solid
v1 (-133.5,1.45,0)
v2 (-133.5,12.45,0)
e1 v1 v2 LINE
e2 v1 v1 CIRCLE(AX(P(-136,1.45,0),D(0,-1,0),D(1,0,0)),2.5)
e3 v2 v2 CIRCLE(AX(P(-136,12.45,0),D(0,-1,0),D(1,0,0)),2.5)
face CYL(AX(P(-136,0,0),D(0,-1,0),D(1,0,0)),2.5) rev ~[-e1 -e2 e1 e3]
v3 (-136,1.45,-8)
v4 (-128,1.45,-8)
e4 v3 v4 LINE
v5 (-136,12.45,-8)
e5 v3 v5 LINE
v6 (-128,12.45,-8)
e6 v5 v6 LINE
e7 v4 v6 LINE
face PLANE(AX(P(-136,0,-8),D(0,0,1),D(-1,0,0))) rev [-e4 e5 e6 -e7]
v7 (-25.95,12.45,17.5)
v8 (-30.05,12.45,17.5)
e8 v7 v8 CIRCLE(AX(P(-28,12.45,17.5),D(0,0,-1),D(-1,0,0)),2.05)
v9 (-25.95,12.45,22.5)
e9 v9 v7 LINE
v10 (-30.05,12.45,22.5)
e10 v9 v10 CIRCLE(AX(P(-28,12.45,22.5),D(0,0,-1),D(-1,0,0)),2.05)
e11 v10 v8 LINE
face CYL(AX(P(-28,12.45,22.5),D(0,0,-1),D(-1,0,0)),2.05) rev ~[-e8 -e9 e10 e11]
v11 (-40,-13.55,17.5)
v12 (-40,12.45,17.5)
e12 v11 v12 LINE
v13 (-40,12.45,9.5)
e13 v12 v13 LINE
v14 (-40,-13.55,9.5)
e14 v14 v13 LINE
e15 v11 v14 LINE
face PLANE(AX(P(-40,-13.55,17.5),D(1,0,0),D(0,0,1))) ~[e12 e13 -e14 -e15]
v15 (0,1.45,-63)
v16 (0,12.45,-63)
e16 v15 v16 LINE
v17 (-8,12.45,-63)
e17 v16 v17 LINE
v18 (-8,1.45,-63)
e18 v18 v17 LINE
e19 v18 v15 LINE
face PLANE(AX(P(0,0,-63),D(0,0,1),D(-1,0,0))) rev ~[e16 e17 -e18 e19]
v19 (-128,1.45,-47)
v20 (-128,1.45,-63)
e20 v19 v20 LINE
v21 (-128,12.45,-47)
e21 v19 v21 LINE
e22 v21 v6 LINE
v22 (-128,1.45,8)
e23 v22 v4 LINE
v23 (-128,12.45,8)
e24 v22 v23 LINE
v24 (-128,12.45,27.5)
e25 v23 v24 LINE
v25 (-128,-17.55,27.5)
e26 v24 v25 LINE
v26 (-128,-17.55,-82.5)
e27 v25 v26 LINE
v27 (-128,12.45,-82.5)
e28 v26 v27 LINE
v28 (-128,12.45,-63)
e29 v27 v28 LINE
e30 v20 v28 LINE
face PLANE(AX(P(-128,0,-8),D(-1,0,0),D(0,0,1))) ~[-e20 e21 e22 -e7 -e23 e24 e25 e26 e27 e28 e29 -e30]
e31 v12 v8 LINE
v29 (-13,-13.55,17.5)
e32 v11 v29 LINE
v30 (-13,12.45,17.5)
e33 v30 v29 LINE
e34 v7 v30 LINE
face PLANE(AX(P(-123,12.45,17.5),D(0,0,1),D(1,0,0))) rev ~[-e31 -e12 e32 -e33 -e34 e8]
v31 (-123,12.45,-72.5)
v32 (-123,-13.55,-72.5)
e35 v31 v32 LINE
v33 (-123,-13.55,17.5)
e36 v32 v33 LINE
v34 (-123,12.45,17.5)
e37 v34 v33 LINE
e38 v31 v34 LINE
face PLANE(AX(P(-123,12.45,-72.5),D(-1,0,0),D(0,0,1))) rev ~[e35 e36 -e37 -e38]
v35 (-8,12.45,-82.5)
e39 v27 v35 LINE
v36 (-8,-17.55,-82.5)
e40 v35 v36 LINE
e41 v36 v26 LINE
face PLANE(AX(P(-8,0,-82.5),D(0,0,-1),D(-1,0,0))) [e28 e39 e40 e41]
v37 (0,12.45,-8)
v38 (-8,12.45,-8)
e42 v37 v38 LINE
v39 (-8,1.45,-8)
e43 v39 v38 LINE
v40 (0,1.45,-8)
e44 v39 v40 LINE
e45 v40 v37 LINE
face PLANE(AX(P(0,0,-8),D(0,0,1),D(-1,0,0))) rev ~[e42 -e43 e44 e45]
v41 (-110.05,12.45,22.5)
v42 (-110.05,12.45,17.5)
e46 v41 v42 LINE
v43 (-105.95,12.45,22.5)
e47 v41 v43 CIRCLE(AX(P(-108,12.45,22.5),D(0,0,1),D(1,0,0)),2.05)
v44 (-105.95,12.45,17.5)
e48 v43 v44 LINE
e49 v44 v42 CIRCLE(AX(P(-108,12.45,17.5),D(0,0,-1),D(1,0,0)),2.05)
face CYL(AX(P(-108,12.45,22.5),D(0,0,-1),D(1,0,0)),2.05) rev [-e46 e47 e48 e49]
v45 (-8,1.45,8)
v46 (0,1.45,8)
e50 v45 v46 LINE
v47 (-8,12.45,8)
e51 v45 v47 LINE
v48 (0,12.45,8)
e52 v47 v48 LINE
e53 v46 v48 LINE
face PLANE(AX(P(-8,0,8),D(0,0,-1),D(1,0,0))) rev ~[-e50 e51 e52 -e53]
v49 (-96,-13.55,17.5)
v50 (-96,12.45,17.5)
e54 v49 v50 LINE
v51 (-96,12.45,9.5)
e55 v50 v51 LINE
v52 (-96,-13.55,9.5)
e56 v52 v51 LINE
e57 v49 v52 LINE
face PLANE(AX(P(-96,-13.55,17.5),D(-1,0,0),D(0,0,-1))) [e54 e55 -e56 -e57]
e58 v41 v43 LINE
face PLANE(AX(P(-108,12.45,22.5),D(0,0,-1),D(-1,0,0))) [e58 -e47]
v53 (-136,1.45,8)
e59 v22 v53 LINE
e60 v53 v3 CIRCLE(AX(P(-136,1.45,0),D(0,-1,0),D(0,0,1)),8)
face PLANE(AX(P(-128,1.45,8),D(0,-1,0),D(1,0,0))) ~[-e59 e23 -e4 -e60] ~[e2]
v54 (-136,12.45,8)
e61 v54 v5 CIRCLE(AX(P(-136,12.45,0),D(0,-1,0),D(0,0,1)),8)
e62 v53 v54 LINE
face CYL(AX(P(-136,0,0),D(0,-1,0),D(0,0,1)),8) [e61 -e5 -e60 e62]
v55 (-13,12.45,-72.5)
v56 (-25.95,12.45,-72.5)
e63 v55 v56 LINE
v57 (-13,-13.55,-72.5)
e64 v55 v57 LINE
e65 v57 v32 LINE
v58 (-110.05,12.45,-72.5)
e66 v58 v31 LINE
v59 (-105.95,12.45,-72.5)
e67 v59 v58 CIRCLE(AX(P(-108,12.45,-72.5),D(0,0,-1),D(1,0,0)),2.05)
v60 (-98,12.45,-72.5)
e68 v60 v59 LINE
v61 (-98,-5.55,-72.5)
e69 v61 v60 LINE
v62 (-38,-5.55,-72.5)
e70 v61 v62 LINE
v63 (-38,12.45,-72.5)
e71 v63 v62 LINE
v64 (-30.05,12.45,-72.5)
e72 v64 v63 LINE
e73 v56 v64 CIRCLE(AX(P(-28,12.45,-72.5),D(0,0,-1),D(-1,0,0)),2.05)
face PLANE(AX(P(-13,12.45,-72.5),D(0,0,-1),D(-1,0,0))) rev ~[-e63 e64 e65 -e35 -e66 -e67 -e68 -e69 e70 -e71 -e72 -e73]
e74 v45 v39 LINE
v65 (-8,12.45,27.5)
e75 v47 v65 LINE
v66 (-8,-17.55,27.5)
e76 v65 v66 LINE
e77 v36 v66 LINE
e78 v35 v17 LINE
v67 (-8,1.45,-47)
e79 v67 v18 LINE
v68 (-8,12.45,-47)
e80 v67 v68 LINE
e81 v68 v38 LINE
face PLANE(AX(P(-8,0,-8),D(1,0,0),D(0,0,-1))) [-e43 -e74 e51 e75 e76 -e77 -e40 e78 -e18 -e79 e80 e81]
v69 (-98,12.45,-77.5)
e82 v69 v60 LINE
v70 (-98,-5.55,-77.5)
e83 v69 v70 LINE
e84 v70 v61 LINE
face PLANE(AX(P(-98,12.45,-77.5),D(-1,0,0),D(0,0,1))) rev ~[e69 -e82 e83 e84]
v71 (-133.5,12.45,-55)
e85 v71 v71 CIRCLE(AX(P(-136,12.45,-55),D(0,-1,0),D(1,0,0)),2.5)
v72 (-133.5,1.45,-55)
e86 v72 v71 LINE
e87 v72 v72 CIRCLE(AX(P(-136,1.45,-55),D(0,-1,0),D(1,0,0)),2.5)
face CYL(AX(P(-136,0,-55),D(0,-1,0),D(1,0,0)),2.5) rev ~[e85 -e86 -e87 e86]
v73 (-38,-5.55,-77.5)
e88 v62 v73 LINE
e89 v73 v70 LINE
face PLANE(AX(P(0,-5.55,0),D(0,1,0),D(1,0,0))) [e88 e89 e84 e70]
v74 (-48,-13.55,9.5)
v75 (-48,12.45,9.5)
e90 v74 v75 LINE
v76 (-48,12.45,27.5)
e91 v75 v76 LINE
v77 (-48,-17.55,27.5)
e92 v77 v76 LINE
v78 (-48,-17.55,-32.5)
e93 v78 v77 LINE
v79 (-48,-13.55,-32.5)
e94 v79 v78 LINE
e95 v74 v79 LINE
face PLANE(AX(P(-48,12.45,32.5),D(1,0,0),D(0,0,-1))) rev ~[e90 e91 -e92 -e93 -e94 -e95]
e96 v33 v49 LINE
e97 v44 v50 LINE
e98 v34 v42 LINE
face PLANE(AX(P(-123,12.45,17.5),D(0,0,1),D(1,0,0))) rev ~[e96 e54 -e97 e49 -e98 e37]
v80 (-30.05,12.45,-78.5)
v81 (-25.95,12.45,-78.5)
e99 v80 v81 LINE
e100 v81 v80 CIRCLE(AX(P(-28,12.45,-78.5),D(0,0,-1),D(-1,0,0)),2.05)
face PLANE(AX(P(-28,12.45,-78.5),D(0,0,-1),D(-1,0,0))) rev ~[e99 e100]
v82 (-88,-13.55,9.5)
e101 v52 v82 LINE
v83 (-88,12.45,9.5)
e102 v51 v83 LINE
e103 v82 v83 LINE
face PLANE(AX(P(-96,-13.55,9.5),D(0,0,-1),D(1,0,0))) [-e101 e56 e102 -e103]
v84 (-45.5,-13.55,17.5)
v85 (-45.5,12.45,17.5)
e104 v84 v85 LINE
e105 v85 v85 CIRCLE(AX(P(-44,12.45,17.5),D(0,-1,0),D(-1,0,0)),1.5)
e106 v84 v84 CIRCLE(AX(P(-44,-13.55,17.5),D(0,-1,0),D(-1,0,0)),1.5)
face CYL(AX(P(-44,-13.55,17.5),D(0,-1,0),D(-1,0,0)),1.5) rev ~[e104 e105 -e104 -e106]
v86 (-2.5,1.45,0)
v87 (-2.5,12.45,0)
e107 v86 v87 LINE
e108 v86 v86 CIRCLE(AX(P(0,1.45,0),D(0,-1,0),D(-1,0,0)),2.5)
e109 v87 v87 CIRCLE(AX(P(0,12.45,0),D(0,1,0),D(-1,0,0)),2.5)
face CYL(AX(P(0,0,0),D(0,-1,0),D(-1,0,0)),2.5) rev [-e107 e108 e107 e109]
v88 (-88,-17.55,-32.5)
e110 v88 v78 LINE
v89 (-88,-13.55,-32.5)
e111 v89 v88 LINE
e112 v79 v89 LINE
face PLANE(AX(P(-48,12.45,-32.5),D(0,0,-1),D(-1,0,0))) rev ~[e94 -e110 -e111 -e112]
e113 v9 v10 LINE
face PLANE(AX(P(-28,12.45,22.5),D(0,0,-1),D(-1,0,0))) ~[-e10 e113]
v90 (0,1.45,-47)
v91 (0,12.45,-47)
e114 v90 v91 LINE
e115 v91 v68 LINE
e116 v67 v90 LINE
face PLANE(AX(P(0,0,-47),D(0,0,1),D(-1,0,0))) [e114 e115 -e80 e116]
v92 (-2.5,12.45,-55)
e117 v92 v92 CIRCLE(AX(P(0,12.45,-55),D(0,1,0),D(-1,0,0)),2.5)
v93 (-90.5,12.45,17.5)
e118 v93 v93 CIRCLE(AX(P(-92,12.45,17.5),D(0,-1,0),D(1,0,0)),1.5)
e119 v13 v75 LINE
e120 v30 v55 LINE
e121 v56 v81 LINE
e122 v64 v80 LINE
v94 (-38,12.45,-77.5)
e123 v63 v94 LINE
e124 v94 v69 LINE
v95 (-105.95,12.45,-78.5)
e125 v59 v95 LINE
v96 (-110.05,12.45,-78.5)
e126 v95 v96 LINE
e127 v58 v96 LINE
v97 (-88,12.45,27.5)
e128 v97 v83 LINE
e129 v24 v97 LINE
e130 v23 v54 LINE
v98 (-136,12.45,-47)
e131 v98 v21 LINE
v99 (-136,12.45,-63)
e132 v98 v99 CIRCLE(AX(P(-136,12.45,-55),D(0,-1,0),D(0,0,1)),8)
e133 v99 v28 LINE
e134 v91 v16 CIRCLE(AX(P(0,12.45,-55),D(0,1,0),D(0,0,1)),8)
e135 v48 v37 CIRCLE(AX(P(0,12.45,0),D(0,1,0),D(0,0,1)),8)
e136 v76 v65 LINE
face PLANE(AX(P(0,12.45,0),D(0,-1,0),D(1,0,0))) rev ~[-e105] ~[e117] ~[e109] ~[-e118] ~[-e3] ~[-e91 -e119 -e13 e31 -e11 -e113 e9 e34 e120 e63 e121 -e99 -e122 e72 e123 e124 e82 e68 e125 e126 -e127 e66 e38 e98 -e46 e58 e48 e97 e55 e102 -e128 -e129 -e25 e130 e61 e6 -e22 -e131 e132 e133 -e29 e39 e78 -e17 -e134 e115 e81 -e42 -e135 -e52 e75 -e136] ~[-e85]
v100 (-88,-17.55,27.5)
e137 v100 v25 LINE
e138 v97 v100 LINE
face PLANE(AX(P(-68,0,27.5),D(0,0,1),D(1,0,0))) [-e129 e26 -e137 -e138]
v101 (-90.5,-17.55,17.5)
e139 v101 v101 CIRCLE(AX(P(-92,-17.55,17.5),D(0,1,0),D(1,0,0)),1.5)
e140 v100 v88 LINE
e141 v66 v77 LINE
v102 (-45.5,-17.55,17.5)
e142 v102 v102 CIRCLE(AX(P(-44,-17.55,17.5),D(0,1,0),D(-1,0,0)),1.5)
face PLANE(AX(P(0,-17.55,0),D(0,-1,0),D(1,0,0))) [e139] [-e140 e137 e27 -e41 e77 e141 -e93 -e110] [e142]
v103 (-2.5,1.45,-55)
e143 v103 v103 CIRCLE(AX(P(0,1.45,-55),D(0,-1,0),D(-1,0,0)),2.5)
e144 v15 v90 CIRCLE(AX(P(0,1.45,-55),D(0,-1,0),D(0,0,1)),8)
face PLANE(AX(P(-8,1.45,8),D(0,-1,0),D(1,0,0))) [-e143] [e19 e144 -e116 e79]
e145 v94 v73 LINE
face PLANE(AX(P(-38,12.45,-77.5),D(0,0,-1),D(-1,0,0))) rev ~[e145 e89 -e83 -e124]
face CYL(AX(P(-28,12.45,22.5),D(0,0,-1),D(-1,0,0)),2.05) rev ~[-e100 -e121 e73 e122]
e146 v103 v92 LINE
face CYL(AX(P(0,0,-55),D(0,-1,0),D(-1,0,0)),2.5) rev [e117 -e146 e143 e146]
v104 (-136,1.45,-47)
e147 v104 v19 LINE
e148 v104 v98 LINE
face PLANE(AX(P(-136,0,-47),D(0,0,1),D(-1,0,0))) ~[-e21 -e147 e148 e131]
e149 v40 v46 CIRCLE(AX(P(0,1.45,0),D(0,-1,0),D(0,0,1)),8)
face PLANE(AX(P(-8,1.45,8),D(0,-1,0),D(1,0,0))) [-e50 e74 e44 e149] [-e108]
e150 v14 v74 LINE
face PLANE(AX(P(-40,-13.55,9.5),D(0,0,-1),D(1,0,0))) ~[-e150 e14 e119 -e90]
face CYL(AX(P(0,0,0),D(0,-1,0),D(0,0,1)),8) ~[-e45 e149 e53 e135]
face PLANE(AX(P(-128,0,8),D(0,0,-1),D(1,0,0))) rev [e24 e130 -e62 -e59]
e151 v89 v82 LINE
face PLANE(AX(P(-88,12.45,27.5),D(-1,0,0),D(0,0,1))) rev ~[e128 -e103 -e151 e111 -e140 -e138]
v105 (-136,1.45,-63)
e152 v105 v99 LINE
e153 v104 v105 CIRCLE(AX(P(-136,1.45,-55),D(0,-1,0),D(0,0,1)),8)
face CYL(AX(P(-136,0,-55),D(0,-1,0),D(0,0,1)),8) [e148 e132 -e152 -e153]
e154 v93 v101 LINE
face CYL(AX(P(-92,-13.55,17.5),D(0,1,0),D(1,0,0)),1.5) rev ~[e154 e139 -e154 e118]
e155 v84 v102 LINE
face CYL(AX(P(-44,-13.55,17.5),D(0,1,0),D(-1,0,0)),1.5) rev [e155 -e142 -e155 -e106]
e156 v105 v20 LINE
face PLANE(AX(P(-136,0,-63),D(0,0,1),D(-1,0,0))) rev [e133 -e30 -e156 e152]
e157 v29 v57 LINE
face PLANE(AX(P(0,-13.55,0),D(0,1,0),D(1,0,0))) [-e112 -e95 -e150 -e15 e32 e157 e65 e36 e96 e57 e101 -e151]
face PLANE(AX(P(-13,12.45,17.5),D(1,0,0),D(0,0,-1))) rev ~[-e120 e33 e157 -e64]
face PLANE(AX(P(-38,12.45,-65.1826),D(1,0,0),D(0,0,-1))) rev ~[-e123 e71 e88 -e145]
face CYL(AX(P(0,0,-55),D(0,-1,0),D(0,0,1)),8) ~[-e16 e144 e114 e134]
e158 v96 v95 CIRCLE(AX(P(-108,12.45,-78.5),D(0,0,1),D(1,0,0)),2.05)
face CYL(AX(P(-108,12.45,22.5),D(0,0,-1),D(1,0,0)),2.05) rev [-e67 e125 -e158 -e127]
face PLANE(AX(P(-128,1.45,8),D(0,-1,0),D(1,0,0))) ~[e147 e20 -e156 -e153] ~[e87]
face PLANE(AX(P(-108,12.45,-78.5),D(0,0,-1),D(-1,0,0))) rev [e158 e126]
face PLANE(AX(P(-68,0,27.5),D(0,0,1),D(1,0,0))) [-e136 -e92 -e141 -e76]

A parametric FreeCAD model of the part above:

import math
import FreeCAD as App
import Part
import Sketcher

V = App.Vector


def add_polygon(sketch, points):
    """Adds a closed chain of lines whose ends are joined by coincident constraints."""
    first, n = sketch.GeometryCount, len(points)
    for a, b in zip(points, points[1:] + points[:1]):
        sketch.addGeometry(Part.LineSegment(App.Vector(*a, 0), App.Vector(*b, 0)), False)
    for i in range(n):
        sketch.addConstraint(Sketcher.Constraint("Coincident", first + i, 2, first + (i + 1) % n, 1))

doc = App.newDocument("Part")
body = doc.addObject("PartDesign::Body", "Body")
body.AllowCompound = True

# Sketch on XZ plane
sketch1 = doc.addObject("Sketcher::SketchObject", "Sketch")
body.addObject(sketch1)
sketch1.AttachmentSupport = (doc.XZ_Plane, [""])
sketch1.MapMode = "FlatFace"
sketch1.addGeometry([
    Part.LineSegment(V(-8, 8, 0), V(0, 8, 0)),  # 0
    Part.ArcOfCircle(Part.Circle(V(0, 0, 0), V(0, 0, 1), 8), math.radians(-90), math.radians(90)),  # 1
    Part.LineSegment(V(0, -8, 0), V(-8, -8, 0)),  # 2
    Part.LineSegment(V(-8, -8, 0), V(-8, 8, 0)),  # 3
    Part.Circle(V(0, 0, 0), V(0, 0, 1), 2.5),  # 4
    Part.LineSegment(V(-8, -47, 0), V(0, -47, 0)),  # 5
    Part.ArcOfCircle(Part.Circle(V(0, -55, 0), V(0, 0, 1), 8), math.radians(-90), math.radians(90)),  # 6
    Part.LineSegment(V(0, -63, 0), V(-8, -63, 0)),  # 7
    Part.LineSegment(V(-8, -63, 0), V(-8, -47, 0)),  # 8
    Part.Circle(V(0, -55, 0), V(0, 0, 1), 2.5),  # 9
], False)
sketch1.addConstraint([
    Sketcher.Constraint("Tangent", 0, 2, 1, 2),
    Sketcher.Constraint("Tangent", 1, 1, 2, 1),
    Sketcher.Constraint("Coincident", 2, 2, 3, 1),
    Sketcher.Constraint("Coincident", 3, 2, 0, 1),
    Sketcher.Constraint("Tangent", 5, 2, 6, 2),
    Sketcher.Constraint("Tangent", 6, 1, 7, 1),
    Sketcher.Constraint("Coincident", 7, 2, 8, 1),
    Sketcher.Constraint("Coincident", 8, 2, 5, 1),
    Sketcher.Constraint("Horizontal", 0),
    Sketcher.Constraint("Horizontal", 2),
    Sketcher.Constraint("Vertical", 3),
    Sketcher.Constraint("Horizontal", 5),
    Sketcher.Constraint("Horizontal", 7),
    Sketcher.Constraint("Vertical", 8),
    Sketcher.Constraint("Coincident", 1, 3, -1, 1),
    Sketcher.Constraint("Coincident", 4, 3, -1, 1),
    Sketcher.Constraint("Coincident", 9, 3, 6, 3),
    Sketcher.Constraint("Equal", 1, 6),
    Sketcher.Constraint("Equal", 4, 9),
    Sketcher.Constraint("PointOnObject", 6, 3, -2),
    Sketcher.Constraint("Vertical", 3, 2, 7, 2),
    Sketcher.Constraint("Diameter", 4, 5.0),
    Sketcher.Constraint("Radius", 1, 8.0),
    Sketcher.Constraint("DistanceY", 6, 3, -1, 1, 55.0),
    Sketcher.Constraint("DistanceX", 0, 1, 0, 2, 8.0),
])
pad1 = doc.addObject("PartDesign::Pad", "Pad")
body.addObject(pad1)
pad1.Profile = sketch1
pad1.Length = 12.45
pad1.Reversed = True

# Sketch on XZ plane
sketch2 = doc.addObject("Sketcher::SketchObject", "Sketch001")
body.addObject(sketch2)
sketch2.AttachmentSupport = (doc.XZ_Plane, [""])
sketch2.MapMode = "FlatFace"
add_polygon(sketch2, [(-68, -82), (-8, -82), (-8, 28), (-68, 28)])  # lines 0-3
sketch2.addConstraint([
    Sketcher.Constraint("Horizontal", 0),
    Sketcher.Constraint("Vertical", 1),
    Sketcher.Constraint("Horizontal", 2),
    Sketcher.Constraint("Vertical", 3),
    Sketcher.Constraint("DistanceX", 0, 1, 0, 2, 60.0),
    Sketcher.Constraint("DistanceY", 1, 1, 1, 2, 110.0),
    Sketcher.Constraint("DistanceY", -1, 1, 1, 2, 27.5),
    Sketcher.Constraint("DistanceX", 0, 2, -1, 1, 8.0),
])
pad2 = doc.addObject("PartDesign::Pad", "Pad001")
body.addObject(pad2)
pad2.Profile = sketch2
pad2.Type = "TwoLengths"
pad2.Length = 17.55
pad2.Length2 = 12.45

# Sketch on XZ plane
sketch3 = doc.addObject("Sketcher::SketchObject", "Sketch002")
body.addObject(sketch3)
sketch3.AttachmentSupport = (doc.XZ_Plane, [""])
sketch3.MapMode = "FlatFace"
sketch3.AttachmentOffset = App.Placement(V(0, 0, -12.45), App.Rotation())
add_polygon(sketch3, [(-30.1, 22.5), (-28, 22.5), (-28, -78.5), (-30.1, -78.5)])  # lines 0-3
sketch3.addGeometry(Part.LineSegment(V(-28, 22.5, 0), V(-28, -78.5, 0)), True)  # axis
sketch3.addConstraint([
    Sketcher.Constraint("Horizontal", 0),
    Sketcher.Constraint("Vertical", 1),
    Sketcher.Constraint("Horizontal", 2),
    Sketcher.Constraint("Vertical", 3),
    Sketcher.Constraint("Vertical", 4),
    Sketcher.Constraint("Coincident", 4, 1, 0, 2),
    Sketcher.Constraint("Horizontal", 2, 2, 4, 2),
    Sketcher.Constraint("DistanceY", 1, 2, 1, 1, 101.0),
    Sketcher.Constraint("DistanceX", 0, 1, 0, 2, 2.05),
    Sketcher.Constraint("DistanceX", 0, 2, -1, 1, 28.0),
    Sketcher.Constraint("DistanceY", -1, 1, 0, 2, 22.5),
])
groove = doc.addObject("PartDesign::Groove", "Groove")
body.addObject(groove)
groove.Profile = sketch3
groove.ReferenceAxis = (sketch3, ["Axis0"])
groove.Angle = 360
doc.recompute()

datumplane = doc.addObject("PartDesign::Plane", "DatumPlane")
body.addObject(datumplane)
datumplane.AttachmentSupport = (doc.YZ_Plane, [""])
datumplane.MapMode = "FlatFace"
datumplane.AttachmentOffset = App.Placement(V(0, 0, -68), App.Rotation())
mirrored = doc.addObject("PartDesign::Mirrored", "Mirrored")
body.addObject(mirrored)
mirrored.TransformMode = "Transform body"
mirrored.MirrorPlane = (datumplane, [""])
body.Tip = mirrored

# Sketch on XZ plane
sketch4 = doc.addObject("Sketcher::SketchObject", "Sketch003")
body.addObject(sketch4)
sketch4.AttachmentSupport = (doc.XZ_Plane, [""])
sketch4.MapMode = "FlatFace"
sketch4.AttachmentOffset = App.Placement(V(0, 0, -12.45), App.Rotation())
add_polygon(sketch4, [(-123, -72), (-123, 18), (-13, 18), (-13, -72)])  # lines 0-3
sketch4.addConstraint([
    Sketcher.Constraint("Vertical", 0),
    Sketcher.Constraint("Horizontal", 1),
    Sketcher.Constraint("Vertical", 2),
    Sketcher.Constraint("Horizontal", 3),
    Sketcher.Constraint("DistanceX", 1, 1, 1, 2, 110.0),
    Sketcher.Constraint("DistanceY", 0, 1, 0, 2, 90.0),
    Sketcher.Constraint("DistanceX", 0, 2, -1, 1, 123.0),
    Sketcher.Constraint("DistanceY", -1, 1, 0, 2, 17.5),
])
pocket1 = doc.addObject("PartDesign::Pocket", "Pocket")
body.addObject(pocket1)
pocket1.Profile = sketch4
pocket1.Length = 26
pocket1.Reversed = True

# Sketch on XZ plane
sketch5 = doc.addObject("Sketcher::SketchObject", "Sketch004")
body.addObject(sketch5)
sketch5.AttachmentSupport = (doc.XZ_Plane, [""])
sketch5.MapMode = "FlatFace"
sketch5.AttachmentOffset = App.Placement(V(0, 0, -12.45), App.Rotation())
add_polygon(sketch5, [(-88, 32), (-48, 32), (-48, -32), (-88, -32)])  # lines 0-3
sketch5.addConstraint([
    Sketcher.Constraint("Horizontal", 0),
    Sketcher.Constraint("Vertical", 1),
    Sketcher.Constraint("Horizontal", 2),
    Sketcher.Constraint("Vertical", 3),
    Sketcher.Constraint("DistanceX", 0, 1, 0, 2, 40.0),
    Sketcher.Constraint("DistanceY", 1, 2, 1, 1, 65.0),
    Sketcher.Constraint("DistanceX", 0, 2, -1, 1, 48.0),
    Sketcher.Constraint("DistanceY", -1, 1, 0, 2, 32.5),
])
pocket2 = doc.addObject("PartDesign::Pocket", "Pocket001")
body.addObject(pocket2)
pocket2.Profile = sketch5
pocket2.Type = "ThroughAll"
pocket2.Reversed = True

# Sketch on XZ plane
sketch6 = doc.addObject("Sketcher::SketchObject", "Sketch005")
body.addObject(sketch6)
sketch6.AttachmentSupport = (doc.XZ_Plane, [""])
sketch6.MapMode = "FlatFace"
sketch6.AttachmentOffset = App.Placement(V(0, 0, 13.55), App.Rotation())
add_polygon(sketch6, [(-88, 18), (-88, 10), (-96, 10), (-96, 18)])  # lines 0-3
sketch6.addConstraint([
    Sketcher.Constraint("Vertical", 0),
    Sketcher.Constraint("Horizontal", 1),
    Sketcher.Constraint("Vertical", 2),
    Sketcher.Constraint("Horizontal", 3),
    Sketcher.Constraint("Equal", 3, 0),
    Sketcher.Constraint("DistanceX", 1, 2, 1, 1, 8.0),
    Sketcher.Constraint("DistanceX", 0, 2, -1, 1, 88.0),
    Sketcher.Constraint("DistanceY", -1, 1, 0, 2, 9.5),
])
pad3 = doc.addObject("PartDesign::Pad", "Pad002")
body.addObject(pad3)
pad3.Profile = sketch6
pad3.Length = 26
pad3.Reversed = True

# Sketch on XZ plane
sketch7 = doc.addObject("Sketcher::SketchObject", "Sketch006")
body.addObject(sketch7)
sketch7.AttachmentSupport = (doc.XZ_Plane, [""])
sketch7.MapMode = "FlatFace"
sketch7.AttachmentOffset = App.Placement(V(0, 0, 13.55), App.Rotation())
sketch7.addGeometry(Part.Circle(V(-92, 17.5, 0), V(0, 0, 1), 1.5), False)
sketch7.addConstraint([
    Sketcher.Constraint("Diameter", 0, 3.0),
    Sketcher.Constraint("DistanceX", 0, 3, -1, 1, 92.0),
    Sketcher.Constraint("DistanceY", -1, 1, 0, 3, 17.5),
])
pocket3 = doc.addObject("PartDesign::Pocket", "Pocket002")
body.addObject(pocket3)
pocket3.Profile = sketch7
pocket3.Type = "ThroughAll"
pocket3.Midplane = True
doc.recompute()

datumplane2 = doc.addObject("PartDesign::Plane", "DatumPlane001")
body.addObject(datumplane2)
datumplane2.AttachmentSupport = (doc.YZ_Plane, [""])
datumplane2.MapMode = "FlatFace"
datumplane2.AttachmentOffset = App.Placement(V(0, 0, -68), App.Rotation())
mirrored2 = doc.addObject("PartDesign::Mirrored", "Mirrored001")
body.addObject(mirrored2)
mirrored2.Originals = [pad3, pocket3]
mirrored2.MirrorPlane = (datumplane2, [""])
body.Tip = mirrored2

# Sketch on XZ plane
sketch8 = doc.addObject("Sketcher::SketchObject", "Sketch007")
body.addObject(sketch8)
sketch8.AttachmentSupport = (doc.XZ_Plane, [""])
sketch8.MapMode = "FlatFace"
sketch8.AttachmentOffset = App.Placement(V(0, 0, -12.45), App.Rotation())
add_polygon(sketch8, [(-98, -78), (-98, -65), (-38, -65), (-38, -78)])  # lines 0-3
sketch8.addConstraint([
    Sketcher.Constraint("Vertical", 0),
    Sketcher.Constraint("Horizontal", 1),
    Sketcher.Constraint("Vertical", 2),
    Sketcher.Constraint("Horizontal", 3),
    Sketcher.Constraint("DistanceX", 1, 1, 1, 2, 60.0),
    Sketcher.Constraint("DistanceX", 0, 2, -1, 1, 98.0),
    Sketcher.Constraint("DistanceY", 2, 2, -1, 1, 77.5),
    Sketcher.Constraint("DistanceY", 0, 1, 0, 2, 12.3174),
])
pocket4 = doc.addObject("PartDesign::Pocket", "Pocket003")
body.addObject(pocket4)
pocket4.Profile = sketch8
pocket4.Length = 18
pocket4.Reversed = True

# Sketch on XY plane
sketch9 = doc.addObject("Sketcher::SketchObject", "Sketch008")
body.addObject(sketch9)
sketch9.AttachmentSupport = (doc.XY_Plane, [""])
sketch9.MapMode = "FlatFace"
sketch9.AttachmentOffset = App.Placement(V(0, 0, 8), App.Rotation())
add_polygon(sketch9, [(-8, 1), (-8, -24), (24, -24), (24, 1)])  # lines 0-3
sketch9.addConstraint([
    Sketcher.Constraint("Vertical", 0),
    Sketcher.Constraint("Horizontal", 1),
    Sketcher.Constraint("Vertical", 2),
    Sketcher.Constraint("Horizontal", 3),
    Sketcher.Constraint("DistanceX", 0, 2, -1, 1, 8.0),
    Sketcher.Constraint("DistanceY", -1, 1, 2, 2, 1.45),
    Sketcher.Constraint("DistanceX", 1, 1, 1, 2, 31.9687),
    Sketcher.Constraint("DistanceY", 0, 2, 0, 1, 25.5335),
])
pocket5 = doc.addObject("PartDesign::Pocket", "Pocket004")
body.addObject(pocket5)
pocket5.Profile = sketch9
pocket5.Type = "ThroughAll"
doc.recompute()

datumplane3 = doc.addObject("PartDesign::Plane", "DatumPlane002")
body.addObject(datumplane3)
datumplane3.AttachmentSupport = (doc.YZ_Plane, [""])
datumplane3.MapMode = "FlatFace"
datumplane3.AttachmentOffset = App.Placement(V(0, 0, -68), App.Rotation())
mirrored3 = doc.addObject("PartDesign::Mirrored", "Mirrored002")
body.addObject(mirrored3)
mirrored3.Originals = [pocket5]
mirrored3.MirrorPlane = (datumplane3, [""])
body.Tip = mirrored3

doc.recompute()
